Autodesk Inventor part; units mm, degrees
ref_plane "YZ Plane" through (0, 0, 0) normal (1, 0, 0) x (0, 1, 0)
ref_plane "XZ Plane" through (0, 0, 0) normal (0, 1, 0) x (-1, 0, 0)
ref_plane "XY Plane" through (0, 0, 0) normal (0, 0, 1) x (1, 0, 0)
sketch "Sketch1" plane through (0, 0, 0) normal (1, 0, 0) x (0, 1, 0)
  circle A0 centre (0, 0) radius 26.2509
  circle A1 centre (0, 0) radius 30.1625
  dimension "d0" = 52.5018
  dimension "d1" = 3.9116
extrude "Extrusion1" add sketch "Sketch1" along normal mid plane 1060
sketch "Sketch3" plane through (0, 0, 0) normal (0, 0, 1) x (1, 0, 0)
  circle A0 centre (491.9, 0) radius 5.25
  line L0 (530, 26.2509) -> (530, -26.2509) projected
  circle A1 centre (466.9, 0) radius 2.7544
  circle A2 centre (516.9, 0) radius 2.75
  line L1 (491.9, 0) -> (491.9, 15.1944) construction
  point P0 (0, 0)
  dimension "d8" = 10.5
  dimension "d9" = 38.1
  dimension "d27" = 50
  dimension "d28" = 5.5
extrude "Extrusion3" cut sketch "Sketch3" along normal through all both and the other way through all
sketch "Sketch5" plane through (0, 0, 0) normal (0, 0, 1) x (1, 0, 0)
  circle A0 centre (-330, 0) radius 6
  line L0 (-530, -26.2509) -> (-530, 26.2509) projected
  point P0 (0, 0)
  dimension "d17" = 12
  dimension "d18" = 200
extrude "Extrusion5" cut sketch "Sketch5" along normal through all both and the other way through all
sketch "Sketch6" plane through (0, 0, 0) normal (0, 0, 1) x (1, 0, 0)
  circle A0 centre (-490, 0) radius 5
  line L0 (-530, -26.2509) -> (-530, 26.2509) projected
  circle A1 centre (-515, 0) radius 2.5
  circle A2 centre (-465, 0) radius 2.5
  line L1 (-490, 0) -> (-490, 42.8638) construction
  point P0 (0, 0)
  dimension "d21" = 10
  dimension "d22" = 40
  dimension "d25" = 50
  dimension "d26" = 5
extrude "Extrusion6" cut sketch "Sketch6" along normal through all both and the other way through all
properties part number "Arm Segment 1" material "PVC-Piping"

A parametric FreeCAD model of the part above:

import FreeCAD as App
import Part
import Sketcher

V = App.Vector
Q = App.Units.Quantity

doc = App.newDocument("Part")
params = doc.addObject("Spreadsheet::Sheet", "Params")
for row, (alias, value) in enumerate([
    ("pad1_length", "1060 mm"),
    ("sketch2_diameter", "10.5 mm"),
    ("sketch2_diameter2", "5.5 mm"),
    ("sketch3_diameter", "12 mm"),
    ("sketch4_diameter", "10 mm"),
    ("sketch4_diameter2", "5 mm"),
], start=1):
    params.set(f"A{row}", alias)
    params.set(f"B{row}", "=" + value)
    params.setAlias(f"B{row}", alias)

body = doc.addObject("PartDesign::Body", "Body")

# Sketch on YZ plane
sketch1 = body.newObject("Sketcher::SketchObject", "Sketch")
sketch1.AttachmentSupport = (doc.getObject("YZ_Plane"), [""])
sketch1.MapMode = "FlatFace"
sketch1.addGeometry([
    Part.Circle(V(0, 0, 0), V(0, 0, 1), 30.1625),
    Part.Circle(V(0, 0, 0), V(0, 0, 1), 26.2509),
], False)
sketch1.addConstraint([
    Sketcher.Constraint("Coincident", 0, 3, -1, 1),
    Sketcher.Constraint("Coincident", 1, 3, -1, 1),
    Sketcher.Constraint("Diameter", 1, Q("52.5018 mm")),
    Sketcher.Constraint("Diameter", 0, Q("60.325 mm")),
])
pad1 = body.newObject("PartDesign::Pad", "Pad")
pad1.Profile = sketch1
pad1.setExpression("Length", "Params.pad1_length")
pad1.Midplane = True

# Sketch on XY plane
sketch2 = body.newObject("Sketcher::SketchObject", "Sketch001")
sketch2.AttachmentSupport = (doc.getObject("XY_Plane"), [""])
sketch2.MapMode = "FlatFace"
sketch2.addGeometry([
    Part.Circle(V(491.9, 0, 0), V(0, 0, 1), 5.25),
    Part.Circle(V(466.9, 0, 0), V(0, 0, 1), 2.7544),
    Part.Circle(V(516.9, 0, 0), V(0, 0, 1), 2.75),
], False)
sketch2.addConstraint([
    Sketcher.Constraint("PointOnObject", 0, 3, -1),
    Sketcher.Constraint("PointOnObject", 1, 3, -1),
    Sketcher.Constraint("PointOnObject", 2, 3, -1),
    Sketcher.Constraint("Diameter", 0, Q("10.5 mm")),
    Sketcher.Constraint("Diameter", 2, Q("5.5 mm")),
    Sketcher.Constraint("DistanceX", 1, 3, 2, 3, Q("50 mm")),
    Sketcher.Constraint("DistanceX", 1, 3, 0, 3, Q("25 mm")),
    Sketcher.Constraint("Diameter", 1, Q("5.5088 mm")),
    Sketcher.Constraint("DistanceX", -1, 1, 0, 3, Q("491.9 mm")),
])
sketch2.setExpression("Constraints[3]", "Params.sketch2_diameter")
sketch2.setExpression("Constraints[4]", "Params.sketch2_diameter2")
pocket1 = body.newObject("PartDesign::Pocket", "Pocket")
pocket1.Profile = sketch2
pocket1.Type = "ThroughAll"
pocket1.Midplane = True

# Sketch on XY plane
sketch3 = body.newObject("Sketcher::SketchObject", "Sketch002")
sketch3.AttachmentSupport = (doc.getObject("XY_Plane"), [""])
sketch3.MapMode = "FlatFace"
sketch3.addGeometry(Part.Circle(V(-330, 0, 0), V(0, 0, 1), 6), False)
sketch3.addConstraint([
    Sketcher.Constraint("PointOnObject", 0, 3, -1),
    Sketcher.Constraint("Diameter", 0, Q("12 mm")),
    Sketcher.Constraint("DistanceX", 0, 3, -1, 1, Q("330 mm")),
])
sketch3.setExpression("Constraints[1]", "Params.sketch3_diameter")
pocket2 = body.newObject("PartDesign::Pocket", "Pocket001")
pocket2.Profile = sketch3
pocket2.Type = "ThroughAll"
pocket2.Midplane = True

# Sketch on XY plane
sketch4 = body.newObject("Sketcher::SketchObject", "Sketch003")
sketch4.AttachmentSupport = (doc.getObject("XY_Plane"), [""])
sketch4.MapMode = "FlatFace"
sketch4.addGeometry([
    Part.Circle(V(-490, 0, 0), V(0, 0, 1), 5),
    Part.Circle(V(-515, 0, 0), V(0, 0, 1), 2.5),
    Part.Circle(V(-465, 0, 0), V(0, 0, 1), 2.5),
], False)
sketch4.addConstraint([
    Sketcher.Constraint("Equal", 1, 2),
    Sketcher.Constraint("PointOnObject", 0, 3, -1),
    Sketcher.Constraint("PointOnObject", 1, 3, -1),
    Sketcher.Constraint("PointOnObject", 2, 3, -1),
    Sketcher.Constraint("Diameter", 0, Q("10 mm")),
    Sketcher.Constraint("Diameter", 1, Q("5 mm")),
    Sketcher.Constraint("DistanceX", 1, 3, 2, 3, Q("50 mm")),
    Sketcher.Constraint("DistanceX", 0, 3, -1, 1, Q("490 mm")),
    Sketcher.Constraint("DistanceX", 1, 3, -1, 1, Q("515 mm")),
])
sketch4.setExpression("Constraints[4]", "Params.sketch4_diameter")
sketch4.setExpression("Constraints[5]", "Params.sketch4_diameter2")
pocket3 = body.newObject("PartDesign::Pocket", "Pocket002")
pocket3.Profile = sketch4
pocket3.Type = "ThroughAll"
pocket3.Midplane = True

doc.recompute()
